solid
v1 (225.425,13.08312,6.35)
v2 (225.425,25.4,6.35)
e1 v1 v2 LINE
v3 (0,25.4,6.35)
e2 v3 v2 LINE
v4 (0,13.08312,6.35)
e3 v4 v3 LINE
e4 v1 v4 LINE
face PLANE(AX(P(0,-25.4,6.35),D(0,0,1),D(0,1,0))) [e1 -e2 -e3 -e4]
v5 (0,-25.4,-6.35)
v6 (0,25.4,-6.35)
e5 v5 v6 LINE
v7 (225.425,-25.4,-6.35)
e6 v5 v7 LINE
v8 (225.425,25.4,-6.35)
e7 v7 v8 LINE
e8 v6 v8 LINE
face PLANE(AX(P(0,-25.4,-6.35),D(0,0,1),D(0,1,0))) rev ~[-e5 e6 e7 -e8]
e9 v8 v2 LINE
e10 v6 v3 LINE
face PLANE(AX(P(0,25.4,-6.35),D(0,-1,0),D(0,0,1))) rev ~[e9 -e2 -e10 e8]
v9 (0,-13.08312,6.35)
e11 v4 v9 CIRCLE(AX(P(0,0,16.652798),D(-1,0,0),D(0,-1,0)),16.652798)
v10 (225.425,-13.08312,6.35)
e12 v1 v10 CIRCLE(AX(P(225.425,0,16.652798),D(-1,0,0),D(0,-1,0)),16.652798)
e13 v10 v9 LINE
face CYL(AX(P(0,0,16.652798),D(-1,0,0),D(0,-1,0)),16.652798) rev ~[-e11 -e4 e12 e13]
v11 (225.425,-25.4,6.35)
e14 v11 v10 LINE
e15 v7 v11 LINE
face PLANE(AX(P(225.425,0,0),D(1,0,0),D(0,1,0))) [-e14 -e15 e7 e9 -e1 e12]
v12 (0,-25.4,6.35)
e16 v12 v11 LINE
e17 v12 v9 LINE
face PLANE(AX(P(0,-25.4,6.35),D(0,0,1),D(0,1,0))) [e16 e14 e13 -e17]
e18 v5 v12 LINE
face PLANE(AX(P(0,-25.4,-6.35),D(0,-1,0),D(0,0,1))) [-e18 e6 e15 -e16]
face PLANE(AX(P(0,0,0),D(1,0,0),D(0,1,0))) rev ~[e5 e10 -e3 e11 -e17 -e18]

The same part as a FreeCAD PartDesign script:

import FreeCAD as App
import Part
import Sketcher
Q = App.Units.Quantity


def add_polygon(sketch, points):
    """Adds a closed chain of lines whose ends are joined by coincident constraints."""
    first, n = sketch.GeometryCount, len(points)
    for a, b in zip(points, points[1:] + points[:1]):
        sketch.addGeometry(Part.LineSegment(App.Vector(*a, 0), App.Vector(*b, 0)), False)
    for i in range(n):
        sketch.addConstraint(Sketcher.Constraint("Coincident", first + i, 2, first + (i + 1) % n, 1))

doc = App.newDocument("Part")
body = doc.addObject("PartDesign::Body", "Body")

# Sketch on YZ plane
sketch1 = doc.addObject("Sketcher::SketchObject", "Sketch")
body.addObject(sketch1)
sketch1.AttachmentSupport = (doc.YZ_Plane, [""])
sketch1.MapMode = "FlatFace"
add_polygon(sketch1, [(-25.4, 6.35), (-25.4, -6.35), (25.4, -6.35), (25.4, 6.35)])  # lines 0-3
sketch1.addConstraint([
    Sketcher.Constraint("Vertical", 0),
    Sketcher.Constraint("Horizontal", 1),
    Sketcher.Constraint("Vertical", 2),
    Sketcher.Constraint("Horizontal", 3),
    Sketcher.Constraint("Symmetric", 0, 2, 2, 2, -1, 1),
    Sketcher.Constraint("DistanceX", 1, 1, 1, 2, Q("2 in")),
    Sketcher.Constraint("DistanceY", 0, 2, 0, 1, Q("0.5 in")),
])
pad1 = doc.addObject("PartDesign::Pad", "Pad")
body.addObject(pad1)
pad1.Profile = sketch1
pad1.Length = Q("8.875 in")

# Sketch on YZ plane
sketch2 = doc.addObject("Sketcher::SketchObject", "Sketch001")
body.addObject(sketch2)
sketch2.AttachmentSupport = (doc.YZ_Plane, [""])
sketch2.MapMode = "FlatFace"
sketch2.addGeometry(Part.Circle(App.Vector(0, 16.652798, 0), App.Vector(0, 0, 1), 16.652798), False)
sketch2.addConstraint([
    Sketcher.Constraint("PointOnObject", 0, 3, -2),
    Sketcher.Constraint("Diameter", 0, Q("33.305596 mm")),
    Sketcher.Constraint("DistanceY", -1, 1, 0, 3, Q("16.652798 mm")),
])
pocket1 = doc.addObject("PartDesign::Pocket", "Pocket")
body.addObject(pocket1)
pocket1.Profile = sketch2
pocket1.Length = Q("10.5 in")
pocket1.Reversed = True

doc.recompute()
